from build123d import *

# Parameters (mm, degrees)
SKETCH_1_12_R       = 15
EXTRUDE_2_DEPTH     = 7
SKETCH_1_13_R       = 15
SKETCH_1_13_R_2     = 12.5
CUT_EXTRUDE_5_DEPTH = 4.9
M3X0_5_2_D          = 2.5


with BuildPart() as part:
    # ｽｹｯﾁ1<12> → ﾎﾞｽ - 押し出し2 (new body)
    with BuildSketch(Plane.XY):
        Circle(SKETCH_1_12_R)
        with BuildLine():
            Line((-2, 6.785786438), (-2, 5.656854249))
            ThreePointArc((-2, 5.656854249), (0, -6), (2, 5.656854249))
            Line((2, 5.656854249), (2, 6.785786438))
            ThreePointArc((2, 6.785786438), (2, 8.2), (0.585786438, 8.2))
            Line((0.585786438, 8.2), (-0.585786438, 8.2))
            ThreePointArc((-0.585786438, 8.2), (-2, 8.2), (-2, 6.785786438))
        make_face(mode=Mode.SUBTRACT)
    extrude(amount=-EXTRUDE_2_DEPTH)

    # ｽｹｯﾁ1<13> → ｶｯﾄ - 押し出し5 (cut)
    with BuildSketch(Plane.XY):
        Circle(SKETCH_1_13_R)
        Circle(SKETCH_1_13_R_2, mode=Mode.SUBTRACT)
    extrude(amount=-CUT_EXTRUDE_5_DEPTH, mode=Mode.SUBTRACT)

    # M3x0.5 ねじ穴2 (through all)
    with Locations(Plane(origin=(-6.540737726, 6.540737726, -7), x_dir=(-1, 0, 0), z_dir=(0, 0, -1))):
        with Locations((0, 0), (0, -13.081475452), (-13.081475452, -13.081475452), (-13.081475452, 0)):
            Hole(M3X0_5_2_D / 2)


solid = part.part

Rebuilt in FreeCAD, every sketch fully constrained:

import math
import FreeCAD as App
import Part
import Sketcher
from FreeCAD import Vector
Q = App.Units.Quantity

doc = App.newDocument("Part")
params = doc.addObject("Spreadsheet::Sheet", "Params")
for row, (alias, value) in enumerate([
    ("sketch1_diameter", "30 mm"),
    ("sketch1_radius", "1 mm"),
    ("sketch1_radius2", "6 mm"),
    ("pad1_length", "7 mm"),
    ("sketch2_diameter", "30 mm"),
    ("sketch2_diameter2", "25 mm"),
    ("pocket1_length", "4.9 mm"),
    ("sketch3_diameter", "2.5 mm"),
    ("hole_diameter", "2.5 mm"),
], start=1):
    params.set(f"A{row}", alias)
    params.set(f"B{row}", "=" + value)
    params.setAlias(f"B{row}", alias)

body = doc.addObject("PartDesign::Body", "Body")

# Sketch on XY plane
sketch1 = doc.addObject("Sketcher::SketchObject", "Sketch")
body.addObject(sketch1)
sketch1.AttachmentSupport = (doc.XY_Plane, [""])
sketch1.MapMode = "FlatFace"
sketch1.addGeometry([
    Part.Circle(Vector(0, 0, 0), Vector(0, 0, 1), 15),  # 0
    Part.LineSegment(Vector(-2, 5.7, 0), Vector(-2, 6.8, 0)),  # 1
    Part.ArcOfCircle(Part.Circle(Vector(-1.3, 7.5, 0), Vector(0, 0, 1), 1), math.radians(45), math.radians(225)),  # 2
    Part.LineSegment(Vector(-0.6, 8.2, 0), Vector(0.6, 8.2, 0)),  # 3
    Part.ArcOfCircle(Part.Circle(Vector(1.3, 7.5, 0), Vector(0, 0, 1), 1), math.radians(-45), math.radians(135)),  # 4
    Part.LineSegment(Vector(2, 6.8, 0), Vector(2, 5.7, 0)),  # 5
    Part.ArcOfCircle(Part.Circle(Vector(0, 0, 0), Vector(0, 0, 1), 6), math.radians(109), math.radians(431)),  # 6
], False)
sketch1.addConstraint([
    Sketcher.Constraint("Coincident", 1, 2, 2, 2),
    Sketcher.Constraint("Coincident", 2, 1, 3, 1),
    Sketcher.Constraint("Coincident", 3, 2, 4, 2),
    Sketcher.Constraint("Coincident", 4, 1, 5, 1),
    Sketcher.Constraint("Coincident", 5, 2, 6, 2),
    Sketcher.Constraint("Coincident", 6, 1, 1, 1),
    Sketcher.Constraint("Vertical", 1),
    Sketcher.Constraint("Horizontal", 3),
    Sketcher.Constraint("Vertical", 5),
    Sketcher.Constraint("Coincident", 0, 3, -1, 1),
    Sketcher.Constraint("Coincident", 6, 3, -1, 1),
    Sketcher.Constraint("Equal", 2, 4),
    Sketcher.Constraint("Symmetric", 2, 3, 4, 3, -2),
    Sketcher.Constraint("Horizontal", 1, 2, 4, 1),
    Sketcher.Constraint("Diameter", 0, Q("30 mm")),
    Sketcher.Constraint("Radius", 2, Q("1 mm")),
    Sketcher.Constraint("Radius", 6, Q("6 mm")),
    Sketcher.Constraint("DistanceX", 1, 2, -1, 1, Q("2 mm")),
    Sketcher.Constraint("DistanceY", -1, 1, 2, 1, Q("8.2 mm")),
    Sketcher.Constraint("DistanceX", 3, 1, 3, 2, Q("1.171573 mm")),
    Sketcher.Constraint("DistanceX", 2, 1, 4, 3, Q("1.87868 mm")),
])
sketch1.setExpression("Constraints[14]", "Params.sketch1_diameter")
sketch1.setExpression("Constraints[15]", "Params.sketch1_radius")
sketch1.setExpression("Constraints[16]", "Params.sketch1_radius2")
pad1 = doc.addObject("PartDesign::Pad", "Pad")
body.addObject(pad1)
pad1.Profile = sketch1
pad1.setExpression("Length", "Params.pad1_length")
pad1.Reversed = True

# Sketch on XY plane
sketch2 = doc.addObject("Sketcher::SketchObject", "Sketch001")
body.addObject(sketch2)
sketch2.AttachmentSupport = (doc.XY_Plane, [""])
sketch2.MapMode = "FlatFace"
sketch2.addGeometry([
    Part.Circle(Vector(0, 0, 0), Vector(0, 0, 1), 15),
    Part.Circle(Vector(0, 0, 0), Vector(0, 0, 1), 12),
], False)
sketch2.addConstraint([
    Sketcher.Constraint("Coincident", 0, 3, -1, 1),
    Sketcher.Constraint("Coincident", 1, 3, -1, 1),
    Sketcher.Constraint("Diameter", 0, Q("30 mm")),
    Sketcher.Constraint("Diameter", 1, Q("25 mm")),
])
sketch2.setExpression("Constraints[2]", "Params.sketch2_diameter")
sketch2.setExpression("Constraints[3]", "Params.sketch2_diameter2")
pocket1 = doc.addObject("PartDesign::Pocket", "Pocket")
body.addObject(pocket1)
pocket1.Profile = sketch2
pocket1.setExpression("Length", "Params.pocket1_length")

# Sketch on XY plane
sketch3 = doc.addObject("Sketcher::SketchObject", "Sketch002")
body.addObject(sketch3)
sketch3.AttachmentSupport = (doc.XY_Plane, [""])
sketch3.MapMode = "FlatFace"
sketch3.AttachmentOffset = App.Placement(Vector(0, 0, -7), App.Rotation())
sketch3.addGeometry([
    Part.Circle(Vector(-6.5, 6.5, 0), Vector(0, 0, 1), 1.2),
    Part.Circle(Vector(-6.5, -6.5, 0), Vector(0, 0, 1), 1.2),
    Part.Circle(Vector(6.5, -6.5, 0), Vector(0, 0, 1), 1.2),
    Part.Circle(Vector(6.5, 6.5, 0), Vector(0, 0, 1), 1.2),
], False)
sketch3.addConstraint([
    Sketcher.Constraint("Equal", 0, 1),
    Sketcher.Constraint("Equal", 1, 2),
    Sketcher.Constraint("Equal", 2, 3),
    Sketcher.Constraint("Symmetric", 0, 3, 2, 3, -1, 1),
    Sketcher.Constraint("Symmetric", 1, 3, 3, 3, -1, 1),
    Sketcher.Constraint("Symmetric", 1, 3, 2, 3, -2),
    Sketcher.Constraint("Diameter", 0, Q("2.5 mm")),
    Sketcher.Constraint("DistanceX", 0, 3, -1, 1, Q("6.540738 mm")),
    Sketcher.Constraint("DistanceY", -1, 1, 0, 3, Q("6.540738 mm")),
])
sketch3.setExpression("Constraints[6]", "Params.sketch3_diameter")
doc.recompute()
hole = doc.addObject("PartDesign::Hole", "Hole")
body.addObject(hole)
hole.Profile = sketch3
hole.ThreadType = "None"
hole.setExpression("Diameter", "Params.hole_diameter")
hole.DepthType = "ThroughAll"
hole.Reversed = True

doc.recompute()
